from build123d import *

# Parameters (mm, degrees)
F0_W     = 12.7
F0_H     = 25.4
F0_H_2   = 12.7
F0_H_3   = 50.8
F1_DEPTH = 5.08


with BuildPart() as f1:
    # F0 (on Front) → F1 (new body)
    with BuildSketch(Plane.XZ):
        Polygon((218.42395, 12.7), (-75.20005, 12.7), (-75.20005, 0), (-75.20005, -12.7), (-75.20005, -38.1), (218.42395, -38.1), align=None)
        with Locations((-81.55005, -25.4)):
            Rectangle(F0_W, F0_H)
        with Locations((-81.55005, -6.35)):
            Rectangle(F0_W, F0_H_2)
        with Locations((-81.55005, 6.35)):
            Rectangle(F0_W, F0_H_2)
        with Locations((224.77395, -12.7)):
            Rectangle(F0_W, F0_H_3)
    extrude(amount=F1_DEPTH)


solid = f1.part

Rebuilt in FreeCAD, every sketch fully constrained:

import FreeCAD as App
import Part
import Sketcher
Q = App.Units.Quantity

doc = App.newDocument("Part")
body = doc.addObject("PartDesign::Body", "Body")

# Sketch on XZ plane
sketch1 = body.newObject("Sketcher::SketchObject", "Sketch")
sketch1.AttachmentSupport = (doc.getObject("XZ_Plane"), [""])
sketch1.MapMode = "FlatFace"
sketch1.addGeometry([
    Part.LineSegment(App.Vector(-87.90005, 12.7, 0), App.Vector(-87.90005, -38.1, 0)),
    Part.LineSegment(App.Vector(-87.90005, -38.1, 0), App.Vector(231.12395, -38.1, 0)),
    Part.LineSegment(App.Vector(231.12395, -38.1, 0), App.Vector(231.12395, 12.7, 0)),
    Part.LineSegment(App.Vector(231.12395, 12.7, 0), App.Vector(-87.90005, 12.7, 0)),
], False)
sketch1.addConstraint([
    Sketcher.Constraint("Coincident", 0, 2, 1, 1),
    Sketcher.Constraint("Coincident", 1, 2, 2, 1),
    Sketcher.Constraint("Coincident", 2, 2, 3, 1),
    Sketcher.Constraint("Coincident", 3, 2, 0, 1),
    Sketcher.Constraint("Vertical", 0),
    Sketcher.Constraint("Horizontal", 1),
    Sketcher.Constraint("Vertical", 2),
    Sketcher.Constraint("Horizontal", 3),
    Sketcher.Constraint("DistanceY", 0, 2, 0, 1, Q("2 in")),
    Sketcher.Constraint("DistanceX", 1, 1, 1, 2, Q("12.56 in")),
    Sketcher.Constraint("DistanceY", 0, 2, -1, 1, Q("1.5 in")),
    Sketcher.Constraint("DistanceX", 0, 2, -1, 1, Q("87.90005 mm")),
])
pad1 = body.newObject("PartDesign::Pad", "Pad")
pad1.Profile = sketch1
pad1.Length = Q("0.2 in")

doc.recompute()
